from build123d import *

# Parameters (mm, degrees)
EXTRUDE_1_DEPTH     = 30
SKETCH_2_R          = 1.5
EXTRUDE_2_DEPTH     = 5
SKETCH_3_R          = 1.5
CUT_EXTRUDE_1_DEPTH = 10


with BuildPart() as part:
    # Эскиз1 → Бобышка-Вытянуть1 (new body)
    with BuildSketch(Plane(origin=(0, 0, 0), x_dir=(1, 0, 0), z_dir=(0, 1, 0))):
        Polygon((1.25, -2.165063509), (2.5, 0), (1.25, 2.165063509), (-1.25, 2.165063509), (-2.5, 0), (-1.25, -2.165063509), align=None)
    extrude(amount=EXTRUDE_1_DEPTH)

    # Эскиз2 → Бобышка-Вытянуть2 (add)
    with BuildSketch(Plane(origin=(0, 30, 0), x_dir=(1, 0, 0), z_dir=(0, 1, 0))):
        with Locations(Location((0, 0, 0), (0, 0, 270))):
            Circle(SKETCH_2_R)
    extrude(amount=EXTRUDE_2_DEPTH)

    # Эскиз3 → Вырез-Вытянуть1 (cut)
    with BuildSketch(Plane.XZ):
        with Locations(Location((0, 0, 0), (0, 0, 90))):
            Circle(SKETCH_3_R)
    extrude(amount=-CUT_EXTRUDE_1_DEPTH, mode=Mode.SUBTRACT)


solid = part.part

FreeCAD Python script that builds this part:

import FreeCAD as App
import Part
import Sketcher

V = App.Vector
Q = App.Units.Quantity

doc = App.newDocument("Part")
body = doc.addObject("PartDesign::Body", "Body")

# Sketch on XZ plane
sketch1 = doc.addObject("Sketcher::SketchObject", "Sketch")
body.addObject(sketch1)
sketch1.AttachmentSupport = (doc.XZ_Plane, [""])
sketch1.MapMode = "FlatFace"
sketch1.addGeometry([
    Part.LineSegment(V(1.25, 2.165064, 0), V(2.5, 0, 0)),  # 0
    Part.LineSegment(V(2.5, 0, 0), V(1.25, -2.165064, 0)),  # 1
    Part.LineSegment(V(1.25, -2.165064, 0), V(-1.25, -2.165064, 0)),  # 2
    Part.LineSegment(V(-1.25, -2.165064, 0), V(-2.5, 0, 0)),  # 3
    Part.LineSegment(V(-2.5, 0, 0), V(-1.25, 2.165064, 0)),  # 4
    Part.LineSegment(V(-1.25, 2.165064, 0), V(1.25, 2.165064, 0)),  # 5
], False)
sketch1.addConstraint([
    Sketcher.Constraint("Coincident", 0, 2, 1, 1),
    Sketcher.Constraint("Coincident", 1, 2, 2, 1),
    Sketcher.Constraint("Coincident", 2, 2, 3, 1),
    Sketcher.Constraint("Coincident", 3, 2, 4, 1),
    Sketcher.Constraint("Coincident", 4, 2, 5, 1),
    Sketcher.Constraint("Coincident", 5, 2, 0, 1),
    Sketcher.Constraint("Horizontal", 2),
    Sketcher.Constraint("Horizontal", 5),
    Sketcher.Constraint("Symmetric", 0, 2, 3, 2, -1, 1),
    Sketcher.Constraint("Symmetric", 1, 2, 4, 2, -1, 1),
    Sketcher.Constraint("PointOnObject", 0, 2, -1),
    Sketcher.Constraint("Parallel", 0, 3),
    Sketcher.Constraint("Vertical", 2, 2, 4, 2),
    Sketcher.Constraint("Angle", 0, Q("-60 deg")),
    Sketcher.Constraint("DistanceX", 2, 2, 2, 1, 2.5),
    Sketcher.Constraint("DistanceX", 3, 2, 0, 2, 5.0),
])
pad1 = doc.addObject("PartDesign::Pad", "Pad")
body.addObject(pad1)
pad1.Profile = sketch1
pad1.Length = 30
pad1.Reversed = True

# Sketch on XZ plane
sketch2 = doc.addObject("Sketcher::SketchObject", "Sketch001")
body.addObject(sketch2)
sketch2.AttachmentSupport = (doc.XZ_Plane, [""])
sketch2.MapMode = "FlatFace"
sketch2.AttachmentOffset = App.Placement(V(0, 0, -30), App.Rotation())
sketch2.addGeometry(Part.Circle(V(0, 0, 0), V(0, 0, 1), 1.5), False)
sketch2.addConstraint([
    Sketcher.Constraint("Coincident", 0, 3, -1, 1),
    Sketcher.Constraint("Diameter", 0, 3.0),
])
pad2 = doc.addObject("PartDesign::Pad", "Pad001")
body.addObject(pad2)
pad2.Profile = sketch2
pad2.Length = 5
pad2.Reversed = True

# Sketch on XZ plane
sketch3 = doc.addObject("Sketcher::SketchObject", "Sketch002")
body.addObject(sketch3)
sketch3.AttachmentSupport = (doc.XZ_Plane, [""])
sketch3.MapMode = "FlatFace"
sketch3.addGeometry(Part.Circle(V(0, 0, 0), V(0, 0, 1), 1.5), False)
sketch3.addConstraint([
    Sketcher.Constraint("Coincident", 0, 3, -1, 1),
    Sketcher.Constraint("Diameter", 0, 3.0),
])
pocket1 = doc.addObject("PartDesign::Pocket", "Pocket")
body.addObject(pocket1)
pocket1.Profile = sketch3
pocket1.Length = 10

doc.recompute()
